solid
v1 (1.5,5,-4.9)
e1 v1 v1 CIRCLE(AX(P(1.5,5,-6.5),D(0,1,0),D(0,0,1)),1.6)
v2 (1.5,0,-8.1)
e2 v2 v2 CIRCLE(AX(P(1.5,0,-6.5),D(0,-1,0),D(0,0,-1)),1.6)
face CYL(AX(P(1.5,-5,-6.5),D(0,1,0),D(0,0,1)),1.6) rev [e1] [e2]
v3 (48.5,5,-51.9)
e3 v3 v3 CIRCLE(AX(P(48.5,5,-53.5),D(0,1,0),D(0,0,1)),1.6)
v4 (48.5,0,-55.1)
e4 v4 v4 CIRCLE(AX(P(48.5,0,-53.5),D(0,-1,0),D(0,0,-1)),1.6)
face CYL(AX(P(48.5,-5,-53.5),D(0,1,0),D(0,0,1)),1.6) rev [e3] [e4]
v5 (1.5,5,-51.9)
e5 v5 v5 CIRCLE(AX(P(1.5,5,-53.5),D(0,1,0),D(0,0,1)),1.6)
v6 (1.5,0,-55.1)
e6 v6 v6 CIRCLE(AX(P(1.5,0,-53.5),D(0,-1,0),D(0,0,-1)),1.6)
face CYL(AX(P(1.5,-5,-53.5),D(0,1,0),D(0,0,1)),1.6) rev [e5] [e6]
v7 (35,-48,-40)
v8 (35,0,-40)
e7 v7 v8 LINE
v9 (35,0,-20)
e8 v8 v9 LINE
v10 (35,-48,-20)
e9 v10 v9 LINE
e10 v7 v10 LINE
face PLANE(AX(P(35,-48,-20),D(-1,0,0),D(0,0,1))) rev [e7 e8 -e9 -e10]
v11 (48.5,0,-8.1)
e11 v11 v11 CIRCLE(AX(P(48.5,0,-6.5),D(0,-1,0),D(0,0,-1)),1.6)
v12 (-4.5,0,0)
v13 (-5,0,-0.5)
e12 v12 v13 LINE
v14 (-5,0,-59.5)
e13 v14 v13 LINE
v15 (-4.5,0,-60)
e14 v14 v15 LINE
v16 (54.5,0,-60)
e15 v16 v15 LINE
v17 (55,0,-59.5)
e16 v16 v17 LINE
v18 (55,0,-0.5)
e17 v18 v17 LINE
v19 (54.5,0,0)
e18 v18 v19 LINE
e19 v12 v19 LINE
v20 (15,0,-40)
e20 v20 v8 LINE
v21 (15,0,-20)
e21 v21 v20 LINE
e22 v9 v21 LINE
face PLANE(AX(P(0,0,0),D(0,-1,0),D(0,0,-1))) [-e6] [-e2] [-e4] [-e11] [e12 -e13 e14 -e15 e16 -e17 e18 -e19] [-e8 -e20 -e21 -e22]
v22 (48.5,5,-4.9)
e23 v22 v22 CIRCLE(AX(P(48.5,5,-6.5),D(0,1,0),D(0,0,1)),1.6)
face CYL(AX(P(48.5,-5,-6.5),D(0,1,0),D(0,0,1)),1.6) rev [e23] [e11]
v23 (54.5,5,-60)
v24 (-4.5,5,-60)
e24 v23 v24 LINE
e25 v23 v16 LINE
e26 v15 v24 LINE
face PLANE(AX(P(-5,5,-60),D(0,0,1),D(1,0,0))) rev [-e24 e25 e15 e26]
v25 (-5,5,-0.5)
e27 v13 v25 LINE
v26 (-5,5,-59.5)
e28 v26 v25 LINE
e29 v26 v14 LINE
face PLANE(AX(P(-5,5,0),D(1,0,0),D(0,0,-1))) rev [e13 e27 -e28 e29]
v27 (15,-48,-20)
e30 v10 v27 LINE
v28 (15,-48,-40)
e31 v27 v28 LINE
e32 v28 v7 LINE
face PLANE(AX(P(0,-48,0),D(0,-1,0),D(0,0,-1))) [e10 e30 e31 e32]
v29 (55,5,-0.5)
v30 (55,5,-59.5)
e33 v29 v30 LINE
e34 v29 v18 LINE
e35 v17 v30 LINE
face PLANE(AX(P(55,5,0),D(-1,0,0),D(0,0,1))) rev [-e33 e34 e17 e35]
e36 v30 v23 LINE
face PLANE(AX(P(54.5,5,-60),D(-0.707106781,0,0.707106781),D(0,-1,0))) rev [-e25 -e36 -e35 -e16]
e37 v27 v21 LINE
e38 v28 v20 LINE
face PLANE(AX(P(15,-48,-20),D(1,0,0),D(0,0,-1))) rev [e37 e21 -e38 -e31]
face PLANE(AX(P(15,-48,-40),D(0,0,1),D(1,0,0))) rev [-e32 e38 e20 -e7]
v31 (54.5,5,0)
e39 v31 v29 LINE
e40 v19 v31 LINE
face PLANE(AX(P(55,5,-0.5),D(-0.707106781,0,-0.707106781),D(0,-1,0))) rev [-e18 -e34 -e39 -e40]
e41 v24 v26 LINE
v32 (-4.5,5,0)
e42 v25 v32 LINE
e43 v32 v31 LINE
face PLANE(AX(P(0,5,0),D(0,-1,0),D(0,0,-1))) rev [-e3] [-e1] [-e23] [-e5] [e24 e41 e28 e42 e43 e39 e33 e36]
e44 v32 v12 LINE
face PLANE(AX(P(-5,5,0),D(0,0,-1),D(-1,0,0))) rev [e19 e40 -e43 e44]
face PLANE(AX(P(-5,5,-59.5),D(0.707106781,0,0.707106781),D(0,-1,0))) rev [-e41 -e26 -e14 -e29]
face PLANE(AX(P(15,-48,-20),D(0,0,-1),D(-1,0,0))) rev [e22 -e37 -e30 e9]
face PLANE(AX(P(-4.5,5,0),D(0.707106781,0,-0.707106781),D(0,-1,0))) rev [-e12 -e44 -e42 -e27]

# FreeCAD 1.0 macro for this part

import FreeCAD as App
import Part
import Sketcher
from FreeCAD import Vector


def edges_at(feature, points):
    """Names of the edges that pass closest to the given points."""
    edges = feature.Shape.Edges
    near = lambda p: min(range(len(edges)), key=lambda i: edges[i].distToShape(Part.Vertex(*p))[0])
    return sorted({f"Edge{near(p) + 1}" for p in points})


def add_polygon(sketch, points):
    """Adds a closed chain of lines whose ends are joined by coincident constraints."""
    first, n = sketch.GeometryCount, len(points)
    for a, b in zip(points, points[1:] + points[:1]):
        sketch.addGeometry(Part.LineSegment(App.Vector(*a, 0), App.Vector(*b, 0)), False)
    for i in range(n):
        sketch.addConstraint(Sketcher.Constraint("Coincident", first + i, 2, first + (i + 1) % n, 1))

doc = App.newDocument("Part")
body = doc.addObject("PartDesign::Body", "Body")

# Sketch on XZ plane
sketch1 = body.newObject("Sketcher::SketchObject", "Sketch")
sketch1.AttachmentSupport = (doc.getObject("XZ_Plane"), [""])
sketch1.MapMode = "FlatFace"
add_polygon(sketch1, [(-5, -60), (-5, 0), (55, 0), (55, -60)])  # lines 0-3
sketch1.addConstraint([
    Sketcher.Constraint("Vertical", 0),
    Sketcher.Constraint("Horizontal", 1),
    Sketcher.Constraint("Vertical", 2),
    Sketcher.Constraint("Horizontal", 3),
    Sketcher.Constraint("PointOnObject", 0, 2, -1),
    Sketcher.Constraint("Equal", 3, 0),
    Sketcher.Constraint("DistanceX", 1, 1, 1, 2, 60.0),
    Sketcher.Constraint("DistanceX", 0, 2, -1, 1, 5.0),
])
pad1 = body.newObject("PartDesign::Pad", "Pad")
pad1.Profile = sketch1
pad1.Length = 5
pad1.Reversed = True

# Sketch on XZ plane
sketch2 = body.newObject("Sketcher::SketchObject", "Sketch001")
sketch2.AttachmentSupport = (doc.getObject("XZ_Plane"), [""])
sketch2.MapMode = "FlatFace"
sketch2.AttachmentOffset = App.Placement(Vector(0, 0, -5), App.Rotation())
sketch2.addGeometry([
    Part.Circle(Vector(1.5, -53.5, 0), Vector(0, 0, 1), 1.6),
    Part.Circle(Vector(48.5, -53.5, 0), Vector(0, 0, 1), 1.6),
    Part.Circle(Vector(48.5, -6.5, 0), Vector(0, 0, 1), 1.6),
    Part.Circle(Vector(1.5, -6.5, 0), Vector(0, 0, 1), 1.6),
], False)
sketch2.addConstraint([
    Sketcher.Constraint("Equal", 0, 1),
    Sketcher.Constraint("Equal", 1, 2),
    Sketcher.Constraint("Equal", 2, 3),
    Sketcher.Constraint("Horizontal", 0, 3, 1, 3),
    Sketcher.Constraint("Horizontal", 2, 3, 3, 3),
    Sketcher.Constraint("Vertical", 1, 3, 2, 3),
    Sketcher.Constraint("Vertical", 0, 3, 3, 3),
    Sketcher.Constraint("Diameter", 0, 3.2),
    Sketcher.Constraint("DistanceX", 0, 3, 1, 3, 47.0),
    Sketcher.Constraint("DistanceY", 1, 3, 2, 3, 47.0),
    Sketcher.Constraint("DistanceX", -1, 1, 0, 3, 1.5),
    Sketcher.Constraint("DistanceY", 0, 3, -1, 1, 53.5),
])
pocket1 = body.newObject("PartDesign::Pocket", "Pocket")
pocket1.Profile = sketch2
pocket1.Length = 10
pocket1.Reversed = True
doc.recompute()

chamfer = body.newObject("PartDesign::Chamfer", "Chamfer")
chamfer.Base = (pocket1, edges_at(pocket1, [
    (-5, 2.5, -60),
    (55, 2.5, -60),
    (55, 2.5, 0),
    (-5, 2.5, 0),
]))
chamfer.Size = 0.5

# Sketch on XZ plane
sketch3 = body.newObject("Sketcher::SketchObject", "Sketch002")
sketch3.AttachmentSupport = (doc.getObject("XZ_Plane"), [""])
sketch3.MapMode = "FlatFace"
add_polygon(sketch3, [(15, -20), (15, -40), (35, -40), (35, -20)])  # lines 0-3
sketch3.addConstraint([
    Sketcher.Constraint("Vertical", 0),
    Sketcher.Constraint("Horizontal", 1),
    Sketcher.Constraint("Vertical", 2),
    Sketcher.Constraint("Horizontal", 3),
    Sketcher.Constraint("Equal", 3, 0),
    Sketcher.Constraint("DistanceX", 1, 1, 1, 2, 20.0),
    Sketcher.Constraint("DistanceX", -1, 1, 0, 2, 15.0),
    Sketcher.Constraint("DistanceY", 0, 2, -1, 1, 40.0),
])
pad2 = body.newObject("PartDesign::Pad", "Pad001")
pad2.Profile = sketch3
pad2.Length = 48

doc.recompute()
